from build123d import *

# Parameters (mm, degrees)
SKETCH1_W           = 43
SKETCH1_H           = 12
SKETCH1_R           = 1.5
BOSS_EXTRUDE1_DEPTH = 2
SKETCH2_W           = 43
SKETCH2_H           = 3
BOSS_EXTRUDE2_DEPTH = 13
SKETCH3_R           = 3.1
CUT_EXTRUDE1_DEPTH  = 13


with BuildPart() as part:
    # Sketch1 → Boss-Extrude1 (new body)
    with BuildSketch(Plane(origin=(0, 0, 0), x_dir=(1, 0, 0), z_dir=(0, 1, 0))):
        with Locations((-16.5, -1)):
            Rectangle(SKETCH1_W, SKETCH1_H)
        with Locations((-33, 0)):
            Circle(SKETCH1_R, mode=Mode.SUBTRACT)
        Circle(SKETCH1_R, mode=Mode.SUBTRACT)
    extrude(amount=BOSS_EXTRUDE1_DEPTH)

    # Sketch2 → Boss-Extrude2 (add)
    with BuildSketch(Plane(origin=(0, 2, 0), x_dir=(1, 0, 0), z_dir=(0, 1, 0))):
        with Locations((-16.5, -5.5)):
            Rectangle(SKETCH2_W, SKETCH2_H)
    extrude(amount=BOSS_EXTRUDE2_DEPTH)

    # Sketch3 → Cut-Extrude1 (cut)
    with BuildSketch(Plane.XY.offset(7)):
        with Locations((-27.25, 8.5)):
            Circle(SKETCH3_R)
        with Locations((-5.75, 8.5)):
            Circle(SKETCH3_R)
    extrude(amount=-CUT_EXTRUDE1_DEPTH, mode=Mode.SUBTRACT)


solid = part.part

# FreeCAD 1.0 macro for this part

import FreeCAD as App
import Part
import Sketcher
Q = App.Units.Quantity


def add_polygon(sketch, points):
    """Adds a closed chain of lines whose ends are joined by coincident constraints."""
    first, n = sketch.GeometryCount, len(points)
    for a, b in zip(points, points[1:] + points[:1]):
        sketch.addGeometry(Part.LineSegment(App.Vector(*a, 0), App.Vector(*b, 0)), False)
    for i in range(n):
        sketch.addConstraint(Sketcher.Constraint("Coincident", first + i, 2, first + (i + 1) % n, 1))

doc = App.newDocument("Part")
body = doc.addObject("PartDesign::Body", "Body")

# Sketch on XZ plane
sketch1 = body.newObject("Sketcher::SketchObject", "Sketch")
sketch1.AttachmentSupport = (doc.getObject("XZ_Plane"), [""])
sketch1.MapMode = "FlatFace"
add_polygon(sketch1, [(-38, -5), (-38, 7), (5, 7), (5, -5)])  # lines 0-3
sketch1.addGeometry(Part.Circle(App.Vector(-33, 0, 0), App.Vector(0, 0, 1), 1.5), False)  # 4
sketch1.addGeometry(Part.Circle(App.Vector(0, 0, 0), App.Vector(0, 0, 1), 1.5), False)  # 5
sketch1.addConstraint([
    Sketcher.Constraint("Vertical", 0),
    Sketcher.Constraint("Horizontal", 1),
    Sketcher.Constraint("Vertical", 2),
    Sketcher.Constraint("Horizontal", 3),
    Sketcher.Constraint("Coincident", 5, 3, -1, 1),
    Sketcher.Constraint("Equal", 4, 5),
    Sketcher.Constraint("PointOnObject", 4, 3, -1),
    Sketcher.Constraint("Diameter", 4, Q("3 mm")),
    Sketcher.Constraint("DistanceX", 1, 1, 1, 2, Q("43 mm")),
    Sketcher.Constraint("DistanceY", 0, 1, 0, 2, Q("12 mm")),
    Sketcher.Constraint("DistanceX", 4, 3, -1, 1, Q("33 mm")),
    Sketcher.Constraint("DistanceX", 0, 2, -1, 1, Q("38 mm")),
    Sketcher.Constraint("DistanceY", -1, 1, 0, 2, Q("7 mm")),
])
pad1 = body.newObject("PartDesign::Pad", "Pad")
pad1.Profile = sketch1
pad1.Length = 2
pad1.Reversed = True

# Sketch on XZ plane
sketch2 = body.newObject("Sketcher::SketchObject", "Sketch001")
sketch2.AttachmentSupport = (doc.getObject("XZ_Plane"), [""])
sketch2.MapMode = "FlatFace"
sketch2.AttachmentOffset = App.Placement(App.Vector(0, 0, -2), App.Rotation())
add_polygon(sketch2, [(-38, 4), (-38, 7), (5, 7), (5, 4)])  # lines 0-3
sketch2.addConstraint([
    Sketcher.Constraint("Vertical", 0),
    Sketcher.Constraint("Horizontal", 1),
    Sketcher.Constraint("Vertical", 2),
    Sketcher.Constraint("Horizontal", 3),
    Sketcher.Constraint("DistanceX", 1, 1, 1, 2, Q("43 mm")),
    Sketcher.Constraint("DistanceY", 0, 1, 0, 2, Q("3 mm")),
    Sketcher.Constraint("DistanceX", 0, 2, -1, 1, Q("38 mm")),
    Sketcher.Constraint("DistanceY", -1, 1, 0, 2, Q("7 mm")),
])
pad2 = body.newObject("PartDesign::Pad", "Pad001")
pad2.Profile = sketch2
pad2.Length = 13
pad2.Reversed = True

# Sketch on XY plane
sketch3 = body.newObject("Sketcher::SketchObject", "Sketch002")
sketch3.AttachmentSupport = (doc.getObject("XY_Plane"), [""])
sketch3.MapMode = "FlatFace"
sketch3.AttachmentOffset = App.Placement(App.Vector(0, 0, 7), App.Rotation())
sketch3.addGeometry([
    Part.Circle(App.Vector(-27.2, 8.5, 0), App.Vector(0, 0, 1), 3.1),
    Part.Circle(App.Vector(-5.8, 8.5, 0), App.Vector(0, 0, 1), 3.1),
], False)
sketch3.addConstraint([
    Sketcher.Constraint("Equal", 0, 1),
    Sketcher.Constraint("Horizontal", 0, 3, 1, 3),
    Sketcher.Constraint("Diameter", 0, Q("6.2 mm")),
    Sketcher.Constraint("DistanceY", -1, 1, 0, 3, Q("8.5 mm")),
    Sketcher.Constraint("DistanceX", 0, 3, 1, 3, Q("21.5 mm")),
    Sketcher.Constraint("DistanceX", 0, 3, -1, 1, Q("27.25 mm")),
])
pocket1 = body.newObject("PartDesign::Pocket", "Pocket")
pocket1.Profile = sketch3
pocket1.Length = 13

doc.recompute()
